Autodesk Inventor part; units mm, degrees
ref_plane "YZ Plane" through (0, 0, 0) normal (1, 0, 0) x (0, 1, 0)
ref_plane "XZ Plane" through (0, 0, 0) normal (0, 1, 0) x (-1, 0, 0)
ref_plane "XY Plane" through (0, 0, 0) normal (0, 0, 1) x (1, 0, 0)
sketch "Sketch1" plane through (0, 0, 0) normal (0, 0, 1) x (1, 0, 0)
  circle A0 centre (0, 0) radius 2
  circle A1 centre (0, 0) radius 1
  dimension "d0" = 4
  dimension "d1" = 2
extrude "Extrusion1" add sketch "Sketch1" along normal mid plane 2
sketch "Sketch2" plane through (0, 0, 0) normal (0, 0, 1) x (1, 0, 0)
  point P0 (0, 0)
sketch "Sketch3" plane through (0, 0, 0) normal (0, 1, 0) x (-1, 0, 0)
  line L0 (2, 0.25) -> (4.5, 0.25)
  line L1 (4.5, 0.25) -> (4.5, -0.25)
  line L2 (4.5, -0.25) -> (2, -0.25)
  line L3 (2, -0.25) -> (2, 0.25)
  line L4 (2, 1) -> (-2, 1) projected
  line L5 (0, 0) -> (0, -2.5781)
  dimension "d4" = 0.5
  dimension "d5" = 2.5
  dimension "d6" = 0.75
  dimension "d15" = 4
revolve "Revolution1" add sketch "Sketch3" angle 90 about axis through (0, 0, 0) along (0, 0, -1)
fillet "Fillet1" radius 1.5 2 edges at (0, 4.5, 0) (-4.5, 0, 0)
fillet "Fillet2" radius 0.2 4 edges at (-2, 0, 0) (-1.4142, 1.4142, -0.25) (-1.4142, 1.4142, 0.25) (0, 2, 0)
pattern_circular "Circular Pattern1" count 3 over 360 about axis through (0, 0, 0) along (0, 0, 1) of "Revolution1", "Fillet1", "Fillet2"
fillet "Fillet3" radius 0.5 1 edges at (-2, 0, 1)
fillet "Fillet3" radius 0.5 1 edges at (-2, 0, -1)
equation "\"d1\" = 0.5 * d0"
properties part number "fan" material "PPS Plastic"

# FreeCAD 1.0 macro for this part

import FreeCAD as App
import Part
import Sketcher

V = App.Vector
Q = App.Units.Quantity


def edges_at(feature, points):
    """Names of the edges that pass closest to the given points."""
    edges = feature.Shape.Edges
    near = lambda p: min(range(len(edges)), key=lambda i: edges[i].distToShape(Part.Vertex(*p))[0])
    return sorted({f"Edge{near(p) + 1}" for p in points})


def add_polygon(sketch, points):
    """Adds a closed chain of lines whose ends are joined by coincident constraints."""
    first, n = sketch.GeometryCount, len(points)
    for a, b in zip(points, points[1:] + points[:1]):
        sketch.addGeometry(Part.LineSegment(App.Vector(*a, 0), App.Vector(*b, 0)), False)
    for i in range(n):
        sketch.addConstraint(Sketcher.Constraint("Coincident", first + i, 2, first + (i + 1) % n, 1))

doc = App.newDocument("Part")
body = doc.addObject("PartDesign::Body", "Body")

# Sketch on XY plane
sketch1 = body.newObject("Sketcher::SketchObject", "Sketch")
sketch1.AttachmentSupport = (doc.getObject("XY_Plane"), [""])
sketch1.MapMode = "FlatFace"
sketch1.addGeometry([
    Part.Circle(V(0, 0, 0), V(0, 0, 1), 2),
    Part.Circle(V(0, 0, 0), V(0, 0, 1), 1),
], False)
sketch1.addConstraint([
    Sketcher.Constraint("Coincident", 0, 3, -1, 1),
    Sketcher.Constraint("Coincident", 1, 3, -1, 1),
    Sketcher.Constraint("Diameter", 0, Q("4 mm")),
    Sketcher.Constraint("Diameter", 1, Q("2 mm")),
])
pad1 = body.newObject("PartDesign::Pad", "Pad")
pad1.Profile = sketch1
pad1.Length = 2
pad1.Midplane = True

# Sketch on XZ plane
sketch2 = body.newObject("Sketcher::SketchObject", "Sketch001")
sketch2.AttachmentSupport = (doc.getObject("XZ_Plane"), [""])
sketch2.MapMode = "FlatFace"
add_polygon(sketch2, [(-4.5, 0.2), (-2, 0.2), (-2, -0.2), (-4.5, -0.2)])  # lines 0-3
sketch2.addConstraint([
    Sketcher.Constraint("Horizontal", 0),
    Sketcher.Constraint("Vertical", 1),
    Sketcher.Constraint("Horizontal", 2),
    Sketcher.Constraint("Vertical", 3),
    Sketcher.Constraint("DistanceX", 0, 1, 0, 2, Q("2.5 mm")),
    Sketcher.Constraint("DistanceY", 1, 2, 1, 1, Q("0.5 mm")),
    Sketcher.Constraint("DistanceX", 0, 2, -1, 1, Q("2 mm")),
    Sketcher.Constraint("DistanceY", -1, 1, 0, 2, Q("0.25 mm")),
])
revolution = body.newObject("PartDesign::Revolution", "Revolution")
revolution.Profile = sketch2
revolution.ReferenceAxis = (sketch2, ["V_Axis"])
revolution.Angle = 90
revolution.Reversed = True
doc.recompute()

fillet = body.newObject("PartDesign::Fillet", "Fillet")
fillet.Base = (revolution, edges_at(revolution, [(0, 4.5, 0), (-4.5, 0, 0)]))
fillet.Radius = 1.5
doc.recompute()

fillet2 = body.newObject("PartDesign::Fillet", "Fillet001")
fillet2.Base = (fillet, edges_at(fillet, [
    (-2, 0, 0),
    (-1.414, 1.414, -0.25),
    (-1.414, 1.414, 0.25),
    (0, 2, 0),
]))
fillet2.Radius = 0.2
doc.recompute()

polarpattern = body.newObject("PartDesign::PolarPattern", "PolarPattern")
polarpattern.Originals = [revolution, fillet, fillet2]
polarpattern.Axis = (doc.getObject("Z_Axis"), [""])
polarpattern.Angle = 360
polarpattern.Occurrences = 3
body.Tip = polarpattern
doc.recompute()

fillet3 = body.newObject("PartDesign::Fillet", "Fillet002")
fillet3.Base = (polarpattern, edges_at(polarpattern, [(-2, 0, 1)]))
fillet3.Radius = 0.5
doc.recompute()

fillet4 = body.newObject("PartDesign::Fillet", "Fillet003")
fillet4.Base = (fillet3, edges_at(fillet3, [(-2, 0, -1)]))
fillet4.Radius = 0.5

doc.recompute()
